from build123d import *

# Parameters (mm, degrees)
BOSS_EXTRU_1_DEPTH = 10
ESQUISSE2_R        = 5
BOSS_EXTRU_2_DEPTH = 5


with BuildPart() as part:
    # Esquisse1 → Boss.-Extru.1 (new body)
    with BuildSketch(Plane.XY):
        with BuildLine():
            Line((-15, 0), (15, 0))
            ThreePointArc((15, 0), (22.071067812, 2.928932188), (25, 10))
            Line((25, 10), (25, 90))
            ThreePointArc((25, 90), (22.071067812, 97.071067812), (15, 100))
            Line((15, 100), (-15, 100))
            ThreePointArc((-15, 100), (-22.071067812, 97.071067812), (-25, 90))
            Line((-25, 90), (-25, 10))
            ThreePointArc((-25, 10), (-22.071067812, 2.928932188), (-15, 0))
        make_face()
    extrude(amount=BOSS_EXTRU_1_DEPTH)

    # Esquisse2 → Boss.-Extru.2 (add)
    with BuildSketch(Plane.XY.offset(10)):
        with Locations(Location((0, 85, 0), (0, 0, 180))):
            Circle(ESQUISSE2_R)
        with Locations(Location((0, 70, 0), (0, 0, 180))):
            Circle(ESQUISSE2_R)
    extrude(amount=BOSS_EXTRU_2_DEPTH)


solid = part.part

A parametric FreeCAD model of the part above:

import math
import FreeCAD as App
import Part
import Sketcher

doc = App.newDocument("Part")
body = doc.addObject("PartDesign::Body", "Body")

sketch1 = body.newObject("Sketcher::SketchObject", "Sketch")
sketch1.AttachmentSupport = (doc.getObject("XY_Plane"), [""])
sketch1.MapMode = "FlatFace"
sketch1.addGeometry(Part.LineSegment(App.Vector(-15, 0, 0), App.Vector(15, 0, 0)), False)
sketch1.addGeometry(Part.ArcOfCircle(Part.Circle(App.Vector(15, 10, 0), App.Vector(0, 0, 1), 10), math.radians(-90), math.radians(0)), False)
sketch1.addGeometry(Part.LineSegment(App.Vector(25, 10, 0), App.Vector(25, 90, 0)), False)
sketch1.addGeometry(Part.ArcOfCircle(Part.Circle(App.Vector(15, 90, 0), App.Vector(0, 0, 1), 10), math.radians(0), math.radians(90)), False)
sketch1.addGeometry(Part.LineSegment(App.Vector(15, 100, 0), App.Vector(-15, 100, 0)), False)
sketch1.addGeometry(Part.ArcOfCircle(Part.Circle(App.Vector(-15, 90, 0), App.Vector(0, 0, 1), 10), math.radians(90), math.radians(180)), False)
sketch1.addGeometry(Part.LineSegment(App.Vector(-25, 90, 0), App.Vector(-25, 10, 0)), False)
sketch1.addGeometry(Part.ArcOfCircle(Part.Circle(App.Vector(-15, 10, 0), App.Vector(0, 0, 1), 10), math.radians(180), math.radians(270)), False)
sketch1.addConstraint(Sketcher.Constraint("Tangent", 0, 2, 1, 1))
sketch1.addConstraint(Sketcher.Constraint("Tangent", 1, 2, 2, 1))
sketch1.addConstraint(Sketcher.Constraint("Tangent", 2, 2, 3, 1))
sketch1.addConstraint(Sketcher.Constraint("Tangent", 3, 2, 4, 1))
sketch1.addConstraint(Sketcher.Constraint("Tangent", 4, 2, 5, 1))
sketch1.addConstraint(Sketcher.Constraint("Tangent", 5, 2, 6, 1))
sketch1.addConstraint(Sketcher.Constraint("Tangent", 6, 2, 7, 1))
sketch1.addConstraint(Sketcher.Constraint("Tangent", 7, 2, 0, 1))
sketch1.addConstraint(Sketcher.Constraint("Horizontal", 0))
sketch1.addConstraint(Sketcher.Constraint("Vertical", 2))
sketch1.addConstraint(Sketcher.Constraint("Horizontal", 4))
sketch1.addConstraint(Sketcher.Constraint("Vertical", 6))
sketch1.addConstraint(Sketcher.Constraint("Equal", 1, 3))
sketch1.addConstraint(Sketcher.Constraint("Equal", 3, 5))
sketch1.addConstraint(Sketcher.Constraint("Equal", 5, 7))
sketch1.addConstraint(Sketcher.Constraint("Symmetric", 0, 2, 7, 2, -1, 1))
sketch1.addConstraint(Sketcher.Constraint("Radius", 1, 10.0))
sketch1.addConstraint(Sketcher.Constraint("DistanceX", 0, 1, 0, 2, 30.0))
sketch1.addConstraint(Sketcher.Constraint("DistanceY", 2, 1, 2, 2, 80.0))
pad1 = body.newObject("PartDesign::Pad", "Pad")
pad1.Profile = sketch1
pad1.Length = 10

sketch2 = body.newObject("Sketcher::SketchObject", "Sketch001")
sketch2.AttachmentSupport = (doc.getObject("XY_Plane"), [""])
sketch2.MapMode = "FlatFace"
sketch2.AttachmentOffset = App.Placement(App.Vector(0, 0, 10), App.Rotation())
sketch2.addGeometry(Part.Circle(App.Vector(0, 85, 0), App.Vector(0, 0, 1), 5), False)
sketch2.addGeometry(Part.Circle(App.Vector(0, 70, 0), App.Vector(0, 0, 1), 5), False)
sketch2.addConstraint(Sketcher.Constraint("Equal", 0, 1))
sketch2.addConstraint(Sketcher.Constraint("PointOnObject", 0, 3, -2))
sketch2.addConstraint(Sketcher.Constraint("PointOnObject", 1, 3, -2))
sketch2.addConstraint(Sketcher.Constraint("Diameter", 0, 10.0))
sketch2.addConstraint(Sketcher.Constraint("DistanceY", -1, 1, 0, 3, 85.0))
sketch2.addConstraint(Sketcher.Constraint("DistanceY", -1, 1, 1, 3, 70.0))
pad2 = body.newObject("PartDesign::Pad", "Pad001")
pad2.Profile = sketch2
pad2.Length = 5

doc.recompute()
